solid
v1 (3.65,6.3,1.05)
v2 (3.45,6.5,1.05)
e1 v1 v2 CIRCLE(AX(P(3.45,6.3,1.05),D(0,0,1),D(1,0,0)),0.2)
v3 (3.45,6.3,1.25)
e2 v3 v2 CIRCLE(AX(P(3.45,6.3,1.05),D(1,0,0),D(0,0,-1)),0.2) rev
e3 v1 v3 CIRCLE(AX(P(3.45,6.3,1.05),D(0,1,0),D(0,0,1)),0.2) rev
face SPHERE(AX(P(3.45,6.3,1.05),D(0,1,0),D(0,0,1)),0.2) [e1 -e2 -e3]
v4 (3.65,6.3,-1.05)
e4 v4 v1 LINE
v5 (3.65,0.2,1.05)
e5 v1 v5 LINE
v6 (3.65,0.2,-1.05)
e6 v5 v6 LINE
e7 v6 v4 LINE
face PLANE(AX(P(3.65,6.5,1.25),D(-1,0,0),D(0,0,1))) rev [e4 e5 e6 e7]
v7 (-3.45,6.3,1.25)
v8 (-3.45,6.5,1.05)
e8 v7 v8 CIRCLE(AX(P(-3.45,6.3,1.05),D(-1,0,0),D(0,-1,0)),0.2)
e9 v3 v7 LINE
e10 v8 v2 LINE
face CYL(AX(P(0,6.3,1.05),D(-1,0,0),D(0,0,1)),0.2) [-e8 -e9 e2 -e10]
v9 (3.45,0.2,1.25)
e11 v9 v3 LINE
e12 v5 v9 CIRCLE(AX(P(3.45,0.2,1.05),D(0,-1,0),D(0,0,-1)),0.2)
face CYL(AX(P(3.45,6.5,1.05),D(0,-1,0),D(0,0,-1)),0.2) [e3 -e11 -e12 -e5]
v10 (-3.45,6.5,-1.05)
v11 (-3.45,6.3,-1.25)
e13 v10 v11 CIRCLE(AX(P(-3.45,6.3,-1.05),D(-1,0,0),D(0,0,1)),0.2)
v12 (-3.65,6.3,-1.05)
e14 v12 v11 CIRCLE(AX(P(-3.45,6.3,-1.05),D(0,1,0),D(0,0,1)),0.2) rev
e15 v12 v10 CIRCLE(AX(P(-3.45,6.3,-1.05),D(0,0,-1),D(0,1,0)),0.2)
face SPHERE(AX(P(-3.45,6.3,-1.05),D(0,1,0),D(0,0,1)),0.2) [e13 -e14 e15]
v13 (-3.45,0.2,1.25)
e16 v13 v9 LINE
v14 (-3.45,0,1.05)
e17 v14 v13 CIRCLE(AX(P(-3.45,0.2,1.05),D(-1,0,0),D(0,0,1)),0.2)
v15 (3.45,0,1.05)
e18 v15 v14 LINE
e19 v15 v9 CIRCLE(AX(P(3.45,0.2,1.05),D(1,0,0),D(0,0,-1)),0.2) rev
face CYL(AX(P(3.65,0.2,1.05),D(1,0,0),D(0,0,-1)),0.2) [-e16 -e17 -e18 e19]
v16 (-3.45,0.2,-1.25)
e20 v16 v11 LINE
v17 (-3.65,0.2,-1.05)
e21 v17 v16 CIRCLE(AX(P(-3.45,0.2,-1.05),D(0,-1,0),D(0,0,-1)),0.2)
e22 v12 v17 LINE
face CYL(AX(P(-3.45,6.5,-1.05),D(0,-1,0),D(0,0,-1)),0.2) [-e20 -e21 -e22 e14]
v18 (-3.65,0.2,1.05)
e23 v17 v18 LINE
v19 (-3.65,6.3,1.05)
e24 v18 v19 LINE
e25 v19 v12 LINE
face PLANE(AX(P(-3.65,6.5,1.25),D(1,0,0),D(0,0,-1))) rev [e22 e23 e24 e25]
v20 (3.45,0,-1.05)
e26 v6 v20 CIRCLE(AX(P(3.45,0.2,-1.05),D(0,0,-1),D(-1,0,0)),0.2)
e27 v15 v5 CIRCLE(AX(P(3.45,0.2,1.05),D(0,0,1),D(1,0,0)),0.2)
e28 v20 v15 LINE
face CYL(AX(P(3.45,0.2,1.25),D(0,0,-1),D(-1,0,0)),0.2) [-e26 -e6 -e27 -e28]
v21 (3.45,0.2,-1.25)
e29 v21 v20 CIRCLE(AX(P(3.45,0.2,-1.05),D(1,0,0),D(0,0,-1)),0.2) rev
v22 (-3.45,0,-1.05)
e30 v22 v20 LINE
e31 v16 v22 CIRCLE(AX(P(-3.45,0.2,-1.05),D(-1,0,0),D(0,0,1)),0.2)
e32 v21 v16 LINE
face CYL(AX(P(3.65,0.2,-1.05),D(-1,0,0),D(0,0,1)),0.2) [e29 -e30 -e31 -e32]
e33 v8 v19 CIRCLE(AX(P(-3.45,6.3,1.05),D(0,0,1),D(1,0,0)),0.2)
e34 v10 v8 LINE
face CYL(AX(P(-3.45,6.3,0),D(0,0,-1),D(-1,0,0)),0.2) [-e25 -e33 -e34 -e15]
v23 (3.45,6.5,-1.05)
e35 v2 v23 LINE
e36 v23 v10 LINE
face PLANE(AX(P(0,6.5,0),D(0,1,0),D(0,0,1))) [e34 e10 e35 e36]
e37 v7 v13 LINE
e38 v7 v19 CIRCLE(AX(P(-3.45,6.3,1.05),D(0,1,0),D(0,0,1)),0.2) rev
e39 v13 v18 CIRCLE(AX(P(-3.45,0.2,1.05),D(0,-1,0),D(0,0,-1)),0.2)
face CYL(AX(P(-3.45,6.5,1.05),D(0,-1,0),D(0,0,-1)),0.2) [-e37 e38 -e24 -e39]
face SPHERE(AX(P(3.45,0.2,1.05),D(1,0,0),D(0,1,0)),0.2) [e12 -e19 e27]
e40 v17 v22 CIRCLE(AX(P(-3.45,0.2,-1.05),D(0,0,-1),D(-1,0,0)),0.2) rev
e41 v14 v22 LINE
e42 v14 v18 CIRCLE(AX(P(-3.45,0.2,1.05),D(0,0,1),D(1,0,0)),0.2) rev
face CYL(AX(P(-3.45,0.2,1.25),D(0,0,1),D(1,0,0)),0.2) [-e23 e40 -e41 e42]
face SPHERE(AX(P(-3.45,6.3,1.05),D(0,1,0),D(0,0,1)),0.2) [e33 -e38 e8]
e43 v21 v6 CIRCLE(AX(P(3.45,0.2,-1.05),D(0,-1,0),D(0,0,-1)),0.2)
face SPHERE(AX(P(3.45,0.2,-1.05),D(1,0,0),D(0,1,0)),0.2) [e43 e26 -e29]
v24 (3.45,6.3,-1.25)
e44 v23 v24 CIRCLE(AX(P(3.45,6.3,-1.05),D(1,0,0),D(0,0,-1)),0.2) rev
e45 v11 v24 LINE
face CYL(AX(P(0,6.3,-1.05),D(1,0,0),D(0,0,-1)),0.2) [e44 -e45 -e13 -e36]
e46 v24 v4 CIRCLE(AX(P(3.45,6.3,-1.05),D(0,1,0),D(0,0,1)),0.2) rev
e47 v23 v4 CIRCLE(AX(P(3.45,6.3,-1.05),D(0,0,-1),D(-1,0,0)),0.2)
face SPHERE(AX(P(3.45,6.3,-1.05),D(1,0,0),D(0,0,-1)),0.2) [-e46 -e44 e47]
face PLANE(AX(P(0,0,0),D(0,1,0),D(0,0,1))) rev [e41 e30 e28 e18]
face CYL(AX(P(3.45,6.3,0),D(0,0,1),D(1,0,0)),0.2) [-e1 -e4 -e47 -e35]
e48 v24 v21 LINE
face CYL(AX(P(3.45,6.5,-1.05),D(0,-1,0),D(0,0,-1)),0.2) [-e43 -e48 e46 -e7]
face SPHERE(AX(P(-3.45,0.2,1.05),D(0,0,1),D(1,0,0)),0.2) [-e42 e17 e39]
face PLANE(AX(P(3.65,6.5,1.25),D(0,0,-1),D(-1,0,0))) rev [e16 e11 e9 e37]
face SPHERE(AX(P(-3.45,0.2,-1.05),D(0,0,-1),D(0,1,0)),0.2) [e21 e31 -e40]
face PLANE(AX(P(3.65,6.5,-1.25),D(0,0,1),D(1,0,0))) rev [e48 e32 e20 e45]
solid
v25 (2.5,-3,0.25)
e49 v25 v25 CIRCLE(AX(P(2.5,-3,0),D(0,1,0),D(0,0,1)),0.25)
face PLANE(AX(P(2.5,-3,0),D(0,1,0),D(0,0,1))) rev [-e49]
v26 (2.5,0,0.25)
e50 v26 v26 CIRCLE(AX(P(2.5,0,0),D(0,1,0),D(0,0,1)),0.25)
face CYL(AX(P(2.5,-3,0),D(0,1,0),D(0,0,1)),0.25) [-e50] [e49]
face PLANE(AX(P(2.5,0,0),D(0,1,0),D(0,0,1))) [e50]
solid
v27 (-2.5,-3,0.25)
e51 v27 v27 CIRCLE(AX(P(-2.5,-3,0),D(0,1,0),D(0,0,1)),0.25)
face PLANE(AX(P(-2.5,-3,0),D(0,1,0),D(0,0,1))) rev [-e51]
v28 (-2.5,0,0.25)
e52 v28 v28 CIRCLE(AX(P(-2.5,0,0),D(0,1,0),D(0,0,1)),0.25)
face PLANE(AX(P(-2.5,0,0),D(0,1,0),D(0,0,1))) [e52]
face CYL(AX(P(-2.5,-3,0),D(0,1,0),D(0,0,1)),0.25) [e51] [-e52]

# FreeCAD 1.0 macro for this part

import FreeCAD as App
import Part
import Sketcher

V = App.Vector
Q = App.Units.Quantity


def add_polygon(sketch, points):
    """Adds a closed chain of lines whose ends are joined by coincident constraints."""
    first, n = sketch.GeometryCount, len(points)
    for a, b in zip(points, points[1:] + points[:1]):
        sketch.addGeometry(Part.LineSegment(App.Vector(*a, 0), App.Vector(*b, 0)), False)
    for i in range(n):
        sketch.addConstraint(Sketcher.Constraint("Coincident", first + i, 2, first + (i + 1) % n, 1))

doc = App.newDocument("Part")
body = doc.addObject("PartDesign::Body", "Body")

sketch1 = body.newObject("Sketcher::SketchObject", "Sketch")
sketch1.AttachmentSupport = (doc.getObject("XZ_Plane"), [""])
sketch1.MapMode = "FlatFace"
add_polygon(sketch1, [(-3.65, -1.25), (-3.65, 1.25), (3.65, 1.25), (3.65, -1.25)])
sketch1.addConstraint(Sketcher.Constraint("Vertical", 0))
sketch1.addConstraint(Sketcher.Constraint("Horizontal", 1))
sketch1.addConstraint(Sketcher.Constraint("Vertical", 2))
sketch1.addConstraint(Sketcher.Constraint("Horizontal", 3))
sketch1.addConstraint(Sketcher.Constraint("Symmetric", 0, 2, 2, 2, -1, 1))
sketch1.addConstraint(Sketcher.Constraint("DistanceX", 1, 1, 1, 2, Q("7.3 mm")))
sketch1.addConstraint(Sketcher.Constraint("DistanceY", 0, 1, 0, 2, Q("2.5 mm")))
pad1 = body.newObject("PartDesign::Pad", "Pad")
pad1.Profile = sketch1
pad1.Length = 6.5
pad1.Reversed = True
doc.recompute()

fillet = body.newObject("PartDesign::Fillet", "Fillet")
fillet.Base = (pad1, ["Edge1"])
fillet.UseAllEdges = True
fillet.Radius = 0.2
body2 = doc.addObject("PartDesign::Body", "Body001")

sketch2 = body2.newObject("Sketcher::SketchObject", "Sketch001")
sketch2.AttachmentSupport = (doc.getObject("XZ_Plane001"), [""])
sketch2.MapMode = "FlatFace"
sketch2.addGeometry(Part.Circle(V(-2.5, 0, 0), V(0, 0, 1), 0.25), False)
sketch2.addConstraint(Sketcher.Constraint("PointOnObject", 0, 3, -1))
sketch2.addConstraint(Sketcher.Constraint("Diameter", 0, Q("0.5 mm")))
sketch2.addConstraint(Sketcher.Constraint("DistanceX", 0, 3, -1, 1, Q("2.5 mm")))
pad2 = body2.newObject("PartDesign::Pad", "Pad001")
pad2.Profile = sketch2
pad2.Length = 3
body3 = doc.addObject("PartDesign::Body", "Body002")

sketch3 = body3.newObject("Sketcher::SketchObject", "Sketch002")
sketch3.AttachmentSupport = (doc.getObject("XZ_Plane002"), [""])
sketch3.MapMode = "FlatFace"
sketch3.addGeometry(Part.Circle(V(2.5, 0, 0), V(0, 0, 1), 0.25), False)
sketch3.addConstraint(Sketcher.Constraint("PointOnObject", 0, 3, -1))
sketch3.addConstraint(Sketcher.Constraint("Diameter", 0, Q("0.5 mm")))
sketch3.addConstraint(Sketcher.Constraint("DistanceX", -1, 1, 0, 3, Q("2.5 mm")))
pad3 = body3.newObject("PartDesign::Pad", "Pad002")
pad3.Profile = sketch3
pad3.Length = 3

doc.recompute()
